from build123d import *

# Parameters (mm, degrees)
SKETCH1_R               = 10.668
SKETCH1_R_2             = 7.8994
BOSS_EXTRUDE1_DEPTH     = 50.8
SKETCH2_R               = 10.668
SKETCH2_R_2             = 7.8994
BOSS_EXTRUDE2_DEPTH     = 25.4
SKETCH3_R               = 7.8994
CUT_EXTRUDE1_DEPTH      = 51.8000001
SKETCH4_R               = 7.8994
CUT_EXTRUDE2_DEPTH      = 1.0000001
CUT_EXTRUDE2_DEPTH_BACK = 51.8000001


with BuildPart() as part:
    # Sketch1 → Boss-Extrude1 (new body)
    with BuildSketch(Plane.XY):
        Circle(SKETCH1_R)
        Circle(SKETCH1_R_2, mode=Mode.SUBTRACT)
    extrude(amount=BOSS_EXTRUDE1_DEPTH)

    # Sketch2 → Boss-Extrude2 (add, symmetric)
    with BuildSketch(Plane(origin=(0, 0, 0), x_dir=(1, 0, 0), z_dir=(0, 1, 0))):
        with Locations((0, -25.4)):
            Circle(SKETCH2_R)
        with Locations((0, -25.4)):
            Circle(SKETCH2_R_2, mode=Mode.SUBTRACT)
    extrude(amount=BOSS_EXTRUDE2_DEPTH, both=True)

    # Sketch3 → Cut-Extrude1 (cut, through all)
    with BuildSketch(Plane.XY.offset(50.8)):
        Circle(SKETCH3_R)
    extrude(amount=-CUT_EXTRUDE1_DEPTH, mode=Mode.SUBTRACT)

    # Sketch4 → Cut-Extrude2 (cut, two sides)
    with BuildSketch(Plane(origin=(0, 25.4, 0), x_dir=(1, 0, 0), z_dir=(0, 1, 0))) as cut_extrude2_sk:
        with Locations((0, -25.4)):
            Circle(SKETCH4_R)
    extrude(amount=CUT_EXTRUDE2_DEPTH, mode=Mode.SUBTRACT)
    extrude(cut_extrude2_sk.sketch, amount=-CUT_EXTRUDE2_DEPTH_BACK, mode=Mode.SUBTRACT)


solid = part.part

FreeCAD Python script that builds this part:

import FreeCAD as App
import Part
import Sketcher
Q = App.Units.Quantity

doc = App.newDocument("Part")
body = doc.addObject("PartDesign::Body", "Body")

sketch1 = doc.addObject("Sketcher::SketchObject", "Sketch")
body.addObject(sketch1)
sketch1.AttachmentSupport = (doc.XY_Plane, [""])
sketch1.MapMode = "FlatFace"
sketch1.addGeometry(Part.Circle(App.Vector(0, 0, 0), App.Vector(0, 0, 1), 10.668), False)
sketch1.addGeometry(Part.Circle(App.Vector(0, 0, 0), App.Vector(0, 0, 1), 7.8994), False)
sketch1.addConstraint(Sketcher.Constraint("Coincident", 0, 3, -1, 1))
sketch1.addConstraint(Sketcher.Constraint("Coincident", 1, 3, -1, 1))
sketch1.addConstraint(Sketcher.Constraint("Diameter", 0, Q("0.84 in")))
sketch1.addConstraint(Sketcher.Constraint("Diameter", 1, Q("0.622 in")))
pad1 = doc.addObject("PartDesign::Pad", "Pad")
body.addObject(pad1)
pad1.Profile = sketch1
pad1.Length = Q("2 in")

sketch2 = doc.addObject("Sketcher::SketchObject", "Sketch001")
body.addObject(sketch2)
sketch2.AttachmentSupport = (doc.XZ_Plane, [""])
sketch2.MapMode = "FlatFace"
sketch2.addGeometry(Part.Circle(App.Vector(0, 25.4, 0), App.Vector(0, 0, 1), 10.668), False)
sketch2.addGeometry(Part.Circle(App.Vector(0, 25.4, 0), App.Vector(0, 0, 1), 7.8994), False)
sketch2.addConstraint(Sketcher.Constraint("Coincident", 1, 3, 0, 3))
sketch2.addConstraint(Sketcher.Constraint("PointOnObject", 0, 3, -2))
sketch2.addConstraint(Sketcher.Constraint("Diameter", 0, Q("0.84 in")))
sketch2.addConstraint(Sketcher.Constraint("Diameter", 1, Q("0.622 in")))
sketch2.addConstraint(Sketcher.Constraint("DistanceY", -1, 1, 0, 3, Q("1 in")))
pad2 = doc.addObject("PartDesign::Pad", "Pad001")
body.addObject(pad2)
pad2.Profile = sketch2
pad2.Length = Q("2 in")
pad2.Midplane = True

sketch3 = doc.addObject("Sketcher::SketchObject", "Sketch002")
body.addObject(sketch3)
sketch3.AttachmentSupport = (doc.XY_Plane, [""])
sketch3.MapMode = "FlatFace"
sketch3.AttachmentOffset = App.Placement(App.Vector(0, 0, 2 * 25.4), App.Rotation())
sketch3.addGeometry(Part.Circle(App.Vector(0, 0, 0), App.Vector(0, 0, 1), 7.8994), False)
sketch3.addConstraint(Sketcher.Constraint("Coincident", 0, 3, -1, 1))
sketch3.addConstraint(Sketcher.Constraint("Diameter", 0, Q("0.622 in")))
pocket1 = doc.addObject("PartDesign::Pocket", "Pocket")
body.addObject(pocket1)
pocket1.Profile = sketch3
pocket1.Type = "ThroughAll"

sketch4 = doc.addObject("Sketcher::SketchObject", "Sketch003")
body.addObject(sketch4)
sketch4.AttachmentSupport = (doc.XZ_Plane, [""])
sketch4.MapMode = "FlatFace"
sketch4.AttachmentOffset = App.Placement(App.Vector(0, 0, -1 * 25.4), App.Rotation())
sketch4.addGeometry(Part.Circle(App.Vector(0, 25.4, 0), App.Vector(0, 0, 1), 7.8994), False)
sketch4.addConstraint(Sketcher.Constraint("PointOnObject", 0, 3, -2))
sketch4.addConstraint(Sketcher.Constraint("Diameter", 0, Q("0.622 in")))
sketch4.addConstraint(Sketcher.Constraint("DistanceY", -1, 1, 0, 3, Q("1 in")))
pocket2 = doc.addObject("PartDesign::Pocket", "Pocket001")
body.addObject(pocket2)
pocket2.Profile = sketch4
pocket2.Type = "ThroughAll"
pocket2.Midplane = True

doc.recompute()
